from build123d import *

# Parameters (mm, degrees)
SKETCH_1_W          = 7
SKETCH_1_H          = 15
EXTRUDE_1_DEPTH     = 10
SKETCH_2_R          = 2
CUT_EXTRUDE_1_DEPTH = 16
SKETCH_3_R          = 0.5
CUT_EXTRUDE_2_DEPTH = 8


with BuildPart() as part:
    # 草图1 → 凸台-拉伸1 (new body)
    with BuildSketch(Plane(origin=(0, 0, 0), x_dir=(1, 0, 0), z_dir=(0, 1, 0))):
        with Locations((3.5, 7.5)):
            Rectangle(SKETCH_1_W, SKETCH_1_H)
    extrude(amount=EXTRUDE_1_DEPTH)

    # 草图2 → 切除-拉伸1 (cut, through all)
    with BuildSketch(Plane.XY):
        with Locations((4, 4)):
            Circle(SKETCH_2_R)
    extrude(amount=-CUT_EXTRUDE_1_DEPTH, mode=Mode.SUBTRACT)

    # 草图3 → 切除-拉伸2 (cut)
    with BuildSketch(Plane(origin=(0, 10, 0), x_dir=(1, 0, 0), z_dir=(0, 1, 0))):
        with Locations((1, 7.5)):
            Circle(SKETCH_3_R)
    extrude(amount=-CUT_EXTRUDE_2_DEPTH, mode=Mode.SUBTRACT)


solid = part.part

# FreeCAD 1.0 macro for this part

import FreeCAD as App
import Part
import Sketcher
from FreeCAD import Vector


def add_polygon(sketch, points):
    """Adds a closed chain of lines whose ends are joined by coincident constraints."""
    first, n = sketch.GeometryCount, len(points)
    for a, b in zip(points, points[1:] + points[:1]):
        sketch.addGeometry(Part.LineSegment(App.Vector(*a, 0), App.Vector(*b, 0)), False)
    for i in range(n):
        sketch.addConstraint(Sketcher.Constraint("Coincident", first + i, 2, first + (i + 1) % n, 1))

doc = App.newDocument("Part")
body = doc.addObject("PartDesign::Body", "Body")

# Sketch on XZ plane
sketch1 = body.newObject("Sketcher::SketchObject", "Sketch")
sketch1.AttachmentSupport = (doc.getObject("XZ_Plane"), [""])
sketch1.MapMode = "FlatFace"
add_polygon(sketch1, [(0, -15), (0, 0), (7, 0), (7, -15)])  # lines 0-3
sketch1.addConstraint(Sketcher.Constraint("Vertical", 0))
sketch1.addConstraint(Sketcher.Constraint("Horizontal", 1))
sketch1.addConstraint(Sketcher.Constraint("Vertical", 2))
sketch1.addConstraint(Sketcher.Constraint("Horizontal", 3))
sketch1.addConstraint(Sketcher.Constraint("Coincident", 0, 2, -1, 1))
sketch1.addConstraint(Sketcher.Constraint("DistanceX", 1, 1, 1, 2, 7.0))
sketch1.addConstraint(Sketcher.Constraint("DistanceY", 0, 1, 0, 2, 15.0))
pad1 = body.newObject("PartDesign::Pad", "Pad")
pad1.Profile = sketch1
pad1.Length = 10
pad1.Reversed = True

# Sketch on XY plane
sketch2 = body.newObject("Sketcher::SketchObject", "Sketch001")
sketch2.AttachmentSupport = (doc.getObject("XY_Plane"), [""])
sketch2.MapMode = "FlatFace"
sketch2.addGeometry(Part.Circle(Vector(4, 4, 0), Vector(0, 0, 1), 2), False)
sketch2.addConstraint(Sketcher.Constraint("Diameter", 0, 4.0))
sketch2.addConstraint(Sketcher.Constraint("DistanceX", -1, 1, 0, 3, 4.0))
sketch2.addConstraint(Sketcher.Constraint("DistanceY", -1, 1, 0, 3, 4.0))
pocket1 = body.newObject("PartDesign::Pocket", "Pocket")
pocket1.Profile = sketch2
pocket1.Type = "ThroughAll"

# Sketch on XZ plane
sketch3 = body.newObject("Sketcher::SketchObject", "Sketch002")
sketch3.AttachmentSupport = (doc.getObject("XZ_Plane"), [""])
sketch3.MapMode = "FlatFace"
sketch3.AttachmentOffset = App.Placement(Vector(0, 0, -10), App.Rotation())
sketch3.addGeometry(Part.Circle(Vector(1, -7.5, 0), Vector(0, 0, 1), 0.5), False)
sketch3.addConstraint(Sketcher.Constraint("Diameter", 0, 1.0))
sketch3.addConstraint(Sketcher.Constraint("DistanceX", -1, 1, 0, 3, 1.0))
sketch3.addConstraint(Sketcher.Constraint("DistanceY", 0, 3, -1, 1, 7.5))
pocket2 = body.newObject("PartDesign::Pocket", "Pocket001")
pocket2.Profile = sketch3
pocket2.Length = 8
pocket2.Reversed = True

doc.recompute()
